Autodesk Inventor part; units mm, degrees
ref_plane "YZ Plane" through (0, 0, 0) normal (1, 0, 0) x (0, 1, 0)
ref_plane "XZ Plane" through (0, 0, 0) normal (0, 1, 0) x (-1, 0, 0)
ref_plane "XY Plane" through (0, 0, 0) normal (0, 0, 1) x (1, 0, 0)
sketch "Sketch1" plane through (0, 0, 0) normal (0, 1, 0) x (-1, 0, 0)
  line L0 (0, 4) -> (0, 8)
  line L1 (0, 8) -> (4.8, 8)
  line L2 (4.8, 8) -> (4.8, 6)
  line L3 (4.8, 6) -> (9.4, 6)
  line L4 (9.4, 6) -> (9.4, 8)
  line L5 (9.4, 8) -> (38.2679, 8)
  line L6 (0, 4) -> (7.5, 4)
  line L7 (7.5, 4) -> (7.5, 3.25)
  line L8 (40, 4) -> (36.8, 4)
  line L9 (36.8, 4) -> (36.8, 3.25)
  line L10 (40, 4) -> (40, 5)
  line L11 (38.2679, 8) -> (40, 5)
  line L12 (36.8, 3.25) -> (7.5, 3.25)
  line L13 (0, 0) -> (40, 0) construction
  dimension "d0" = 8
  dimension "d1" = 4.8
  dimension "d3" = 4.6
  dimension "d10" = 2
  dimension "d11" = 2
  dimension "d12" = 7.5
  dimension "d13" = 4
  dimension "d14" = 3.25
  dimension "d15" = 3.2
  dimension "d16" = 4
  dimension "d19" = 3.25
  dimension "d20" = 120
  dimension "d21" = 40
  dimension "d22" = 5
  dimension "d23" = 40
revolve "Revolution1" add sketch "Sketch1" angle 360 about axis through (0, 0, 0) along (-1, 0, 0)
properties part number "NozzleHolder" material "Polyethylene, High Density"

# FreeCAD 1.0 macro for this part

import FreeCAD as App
import Part
import Sketcher

V = App.Vector
Q = App.Units.Quantity


def add_polygon(sketch, points):
    """Adds a closed chain of lines whose ends are joined by coincident constraints."""
    first, n = sketch.GeometryCount, len(points)
    for a, b in zip(points, points[1:] + points[:1]):
        sketch.addGeometry(Part.LineSegment(App.Vector(*a, 0), App.Vector(*b, 0)), False)
    for i in range(n):
        sketch.addConstraint(Sketcher.Constraint("Coincident", first + i, 2, first + (i + 1) % n, 1))

doc = App.newDocument("Part")
body = doc.addObject("PartDesign::Body", "Body")

# Sketch on XZ plane
sketch1 = doc.addObject("Sketcher::SketchObject", "Sketch")
body.addObject(sketch1)
sketch1.AttachmentSupport = (doc.XZ_Plane, [""])
sketch1.MapMode = "FlatFace"
add_polygon(sketch1, [(0, 8), (0, 4), (-7.5, 4), (-7.5, 3.25), (-36.8, 3.25), (-36.8, 4), (-40, 4), (-40, 5), (-38.2679, 8), (-9.4, 8), (-9.4, 6), (-4.8, 6), (-4.8, 8)])  # lines 0-12
sketch1.addConstraint([
    Sketcher.Constraint("Vertical", 0),
    Sketcher.Constraint("Horizontal", 1),
    Sketcher.Constraint("Vertical", 2),
    Sketcher.Constraint("Horizontal", 3),
    Sketcher.Constraint("Vertical", 4),
    Sketcher.Constraint("Horizontal", 5),
    Sketcher.Constraint("Vertical", 6),
    Sketcher.Constraint("Horizontal", 8),
    Sketcher.Constraint("Vertical", 9),
    Sketcher.Constraint("Horizontal", 10),
    Sketcher.Constraint("Vertical", 11),
    Sketcher.Constraint("Horizontal", 12),
    Sketcher.Constraint("PointOnObject", 0, 2, -2),
    Sketcher.Constraint("Horizontal", 1, 2, 4, 2),
    Sketcher.Constraint("Horizontal", 8, 2, 11, 2),
    Sketcher.Constraint("DistanceY", 0, 2, 0, 1, 4.0),
    Sketcher.Constraint("DistanceY", 9, 2, 9, 1, 2.0),
    Sketcher.Constraint("DistanceX", 1, 2, 1, 1, 7.5),
    Sketcher.Constraint("DistanceX", 5, 2, 5, 1, 3.2),
    Sketcher.Constraint("DistanceX", 10, 1, 10, 2, 4.6),
    Sketcher.Constraint("DistanceX", 12, 1, 12, 2, 4.8),
    Sketcher.Constraint("DistanceY", -1, 1, 0, 2, 4.0),
    Sketcher.Constraint("DistanceX", 5, 2, -1, 1, 40.0),
    Sketcher.Constraint("DistanceY", -1, 1, 6, 2, 5.0),
    Sketcher.Constraint("DistanceY", -1, 1, 2, 2, 3.25),
    Sketcher.Constraint("Angle", 7, Q("59.9993 deg")),
])
revolution = doc.addObject("PartDesign::Revolution", "Revolution")
body.addObject(revolution)
revolution.Profile = sketch1
revolution.ReferenceAxis = (sketch1, ["H_Axis"])
revolution.Angle = 360

doc.recompute()
